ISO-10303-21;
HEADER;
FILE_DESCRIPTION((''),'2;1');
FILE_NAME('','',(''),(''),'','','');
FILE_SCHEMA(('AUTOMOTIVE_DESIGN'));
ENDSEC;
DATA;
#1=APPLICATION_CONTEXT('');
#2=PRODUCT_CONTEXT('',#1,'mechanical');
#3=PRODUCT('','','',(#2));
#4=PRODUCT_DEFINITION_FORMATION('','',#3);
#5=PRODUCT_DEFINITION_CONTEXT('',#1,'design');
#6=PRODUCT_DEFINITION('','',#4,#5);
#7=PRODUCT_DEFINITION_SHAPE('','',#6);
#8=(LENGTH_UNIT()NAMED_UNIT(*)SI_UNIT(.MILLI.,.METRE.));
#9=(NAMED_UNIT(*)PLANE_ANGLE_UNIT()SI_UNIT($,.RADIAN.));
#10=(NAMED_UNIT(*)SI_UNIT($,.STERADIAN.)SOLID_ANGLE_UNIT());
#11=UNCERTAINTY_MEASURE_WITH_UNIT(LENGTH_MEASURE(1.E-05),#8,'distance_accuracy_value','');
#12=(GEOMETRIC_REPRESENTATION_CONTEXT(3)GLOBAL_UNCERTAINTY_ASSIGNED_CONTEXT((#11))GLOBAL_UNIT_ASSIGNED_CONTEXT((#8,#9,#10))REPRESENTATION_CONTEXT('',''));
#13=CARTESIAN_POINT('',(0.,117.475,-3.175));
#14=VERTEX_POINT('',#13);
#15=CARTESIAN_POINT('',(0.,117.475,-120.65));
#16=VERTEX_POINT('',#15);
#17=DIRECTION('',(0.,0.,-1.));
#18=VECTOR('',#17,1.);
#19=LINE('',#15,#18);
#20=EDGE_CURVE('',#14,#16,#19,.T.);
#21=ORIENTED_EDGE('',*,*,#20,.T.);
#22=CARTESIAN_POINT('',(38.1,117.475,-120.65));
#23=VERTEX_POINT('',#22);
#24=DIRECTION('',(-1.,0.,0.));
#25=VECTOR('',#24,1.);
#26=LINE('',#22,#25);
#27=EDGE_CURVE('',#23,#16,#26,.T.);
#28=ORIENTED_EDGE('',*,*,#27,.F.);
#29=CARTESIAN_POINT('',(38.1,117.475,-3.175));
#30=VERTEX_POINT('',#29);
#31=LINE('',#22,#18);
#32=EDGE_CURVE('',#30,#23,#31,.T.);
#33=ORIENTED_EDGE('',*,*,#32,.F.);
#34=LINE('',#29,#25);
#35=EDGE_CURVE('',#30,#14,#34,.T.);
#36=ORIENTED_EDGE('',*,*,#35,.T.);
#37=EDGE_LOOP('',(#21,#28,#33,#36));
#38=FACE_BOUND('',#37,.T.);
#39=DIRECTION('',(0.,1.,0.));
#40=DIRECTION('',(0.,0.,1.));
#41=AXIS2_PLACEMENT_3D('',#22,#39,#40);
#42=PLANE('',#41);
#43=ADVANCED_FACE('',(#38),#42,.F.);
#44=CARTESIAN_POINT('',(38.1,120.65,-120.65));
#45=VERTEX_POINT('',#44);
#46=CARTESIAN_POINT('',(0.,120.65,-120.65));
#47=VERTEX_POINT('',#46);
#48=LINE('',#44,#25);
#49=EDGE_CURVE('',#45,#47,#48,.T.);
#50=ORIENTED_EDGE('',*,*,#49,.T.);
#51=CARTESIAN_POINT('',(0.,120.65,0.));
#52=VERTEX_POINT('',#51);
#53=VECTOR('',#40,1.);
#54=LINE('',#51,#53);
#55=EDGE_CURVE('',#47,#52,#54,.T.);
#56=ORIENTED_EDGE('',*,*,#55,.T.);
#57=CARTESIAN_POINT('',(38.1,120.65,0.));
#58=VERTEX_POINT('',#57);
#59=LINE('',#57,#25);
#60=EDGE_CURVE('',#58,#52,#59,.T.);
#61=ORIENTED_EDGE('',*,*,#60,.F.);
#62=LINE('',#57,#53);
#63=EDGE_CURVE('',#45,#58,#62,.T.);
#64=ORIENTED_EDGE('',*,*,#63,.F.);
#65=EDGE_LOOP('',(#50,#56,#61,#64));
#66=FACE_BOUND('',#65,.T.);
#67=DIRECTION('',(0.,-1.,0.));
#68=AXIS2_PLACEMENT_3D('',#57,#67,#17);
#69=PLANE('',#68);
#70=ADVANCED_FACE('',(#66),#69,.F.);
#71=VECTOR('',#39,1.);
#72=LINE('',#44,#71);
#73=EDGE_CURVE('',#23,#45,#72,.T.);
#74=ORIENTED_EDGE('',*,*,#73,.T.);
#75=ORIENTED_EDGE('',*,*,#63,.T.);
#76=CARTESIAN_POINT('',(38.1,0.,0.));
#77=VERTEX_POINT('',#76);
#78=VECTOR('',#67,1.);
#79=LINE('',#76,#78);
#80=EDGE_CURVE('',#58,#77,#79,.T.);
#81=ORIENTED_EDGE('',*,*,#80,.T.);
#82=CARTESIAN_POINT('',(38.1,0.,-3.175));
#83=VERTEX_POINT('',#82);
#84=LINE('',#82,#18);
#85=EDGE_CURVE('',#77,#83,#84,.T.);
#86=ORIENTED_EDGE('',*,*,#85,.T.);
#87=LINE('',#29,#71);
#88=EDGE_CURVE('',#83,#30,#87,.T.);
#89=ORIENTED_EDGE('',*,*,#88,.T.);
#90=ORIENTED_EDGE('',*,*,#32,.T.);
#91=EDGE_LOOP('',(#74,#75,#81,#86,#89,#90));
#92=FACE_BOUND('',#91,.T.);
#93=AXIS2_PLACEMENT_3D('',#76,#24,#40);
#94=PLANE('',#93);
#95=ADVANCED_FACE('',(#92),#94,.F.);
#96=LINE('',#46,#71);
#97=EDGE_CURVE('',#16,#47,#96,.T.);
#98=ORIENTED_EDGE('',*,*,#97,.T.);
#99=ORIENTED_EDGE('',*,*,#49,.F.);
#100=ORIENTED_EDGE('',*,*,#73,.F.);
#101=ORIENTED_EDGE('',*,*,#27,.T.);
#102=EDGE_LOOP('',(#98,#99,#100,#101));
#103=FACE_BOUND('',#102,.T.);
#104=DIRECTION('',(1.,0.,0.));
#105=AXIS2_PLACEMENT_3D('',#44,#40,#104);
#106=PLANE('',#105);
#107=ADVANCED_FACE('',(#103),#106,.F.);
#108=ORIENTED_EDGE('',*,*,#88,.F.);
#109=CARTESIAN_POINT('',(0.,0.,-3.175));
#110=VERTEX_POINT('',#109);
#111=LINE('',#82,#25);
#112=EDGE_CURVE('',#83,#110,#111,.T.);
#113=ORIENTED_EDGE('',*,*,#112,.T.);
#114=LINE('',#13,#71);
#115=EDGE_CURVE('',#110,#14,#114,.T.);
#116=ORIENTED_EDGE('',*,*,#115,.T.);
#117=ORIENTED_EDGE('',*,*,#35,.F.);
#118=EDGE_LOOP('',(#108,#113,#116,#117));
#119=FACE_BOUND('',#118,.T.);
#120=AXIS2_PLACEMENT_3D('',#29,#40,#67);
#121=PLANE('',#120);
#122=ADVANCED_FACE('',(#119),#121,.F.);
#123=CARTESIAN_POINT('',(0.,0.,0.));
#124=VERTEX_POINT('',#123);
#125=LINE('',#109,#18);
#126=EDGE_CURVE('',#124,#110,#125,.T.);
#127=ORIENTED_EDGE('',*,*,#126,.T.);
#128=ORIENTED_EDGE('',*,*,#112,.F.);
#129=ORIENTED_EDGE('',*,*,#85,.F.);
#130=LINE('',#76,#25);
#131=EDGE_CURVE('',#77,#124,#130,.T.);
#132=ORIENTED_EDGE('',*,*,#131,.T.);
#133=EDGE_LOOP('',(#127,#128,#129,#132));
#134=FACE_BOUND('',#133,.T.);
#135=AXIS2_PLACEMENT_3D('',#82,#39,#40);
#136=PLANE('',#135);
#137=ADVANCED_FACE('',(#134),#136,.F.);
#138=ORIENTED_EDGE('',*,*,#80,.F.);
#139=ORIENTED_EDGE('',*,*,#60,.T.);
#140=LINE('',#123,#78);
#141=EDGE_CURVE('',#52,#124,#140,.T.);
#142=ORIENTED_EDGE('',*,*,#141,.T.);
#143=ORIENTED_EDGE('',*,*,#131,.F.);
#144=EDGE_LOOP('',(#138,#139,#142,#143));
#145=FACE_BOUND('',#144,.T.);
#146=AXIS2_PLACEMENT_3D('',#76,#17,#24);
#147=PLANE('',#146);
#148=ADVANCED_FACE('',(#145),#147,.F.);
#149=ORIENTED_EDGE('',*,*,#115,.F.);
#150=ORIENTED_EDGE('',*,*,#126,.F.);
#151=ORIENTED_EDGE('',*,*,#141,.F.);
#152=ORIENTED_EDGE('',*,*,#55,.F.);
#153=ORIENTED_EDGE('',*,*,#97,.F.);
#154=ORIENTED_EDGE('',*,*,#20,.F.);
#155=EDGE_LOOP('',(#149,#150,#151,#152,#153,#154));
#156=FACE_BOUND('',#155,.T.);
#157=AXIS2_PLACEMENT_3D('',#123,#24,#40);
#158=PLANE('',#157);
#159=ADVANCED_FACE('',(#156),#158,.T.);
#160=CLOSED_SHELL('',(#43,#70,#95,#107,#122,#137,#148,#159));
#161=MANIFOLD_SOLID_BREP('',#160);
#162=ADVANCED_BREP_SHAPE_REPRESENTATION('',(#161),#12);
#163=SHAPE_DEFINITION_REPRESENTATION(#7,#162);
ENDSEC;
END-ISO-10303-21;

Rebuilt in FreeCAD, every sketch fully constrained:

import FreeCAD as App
import Part
import Sketcher

V = App.Vector
Q = App.Units.Quantity


def add_polygon(sketch, points):
    """Adds a closed chain of lines whose ends are joined by coincident constraints."""
    first, n = sketch.GeometryCount, len(points)
    for a, b in zip(points, points[1:] + points[:1]):
        sketch.addGeometry(Part.LineSegment(App.Vector(*a, 0), App.Vector(*b, 0)), False)
    for i in range(n):
        sketch.addConstraint(Sketcher.Constraint("Coincident", first + i, 2, first + (i + 1) % n, 1))

doc = App.newDocument("Part")
body = doc.addObject("PartDesign::Body", "Body")

sketch1 = doc.addObject("Sketcher::SketchObject", "Sketch")
body.addObject(sketch1)
sketch1.AttachmentSupport = (doc.YZ_Plane, [""])
sketch1.MapMode = "FlatFace"
add_polygon(sketch1, [(120.65, 0), (0, 0), (0, -3.175), (117.475, -3.175), (117.475, -120.65), (120.65, -120.65)])
sketch1.addConstraint(Sketcher.Constraint("Horizontal", 0))
sketch1.addConstraint(Sketcher.Constraint("Vertical", 1))
sketch1.addConstraint(Sketcher.Constraint("Horizontal", 2))
sketch1.addConstraint(Sketcher.Constraint("Vertical", 3))
sketch1.addConstraint(Sketcher.Constraint("Horizontal", 4))
sketch1.addConstraint(Sketcher.Constraint("Vertical", 5))
sketch1.addConstraint(Sketcher.Constraint("Coincident", 0, 2, -1, 1))
sketch1.addConstraint(Sketcher.Constraint("Equal", 4, 1))
sketch1.addConstraint(Sketcher.Constraint("Equal", 2, 3))
sketch1.addConstraint(Sketcher.Constraint("DistanceX", 0, 2, 0, 1, Q("4.75 in")))
sketch1.addConstraint(Sketcher.Constraint("DistanceX", 2, 1, 2, 2, Q("4.625 in")))
pad1 = doc.addObject("PartDesign::Pad", "Pad")
body.addObject(pad1)
pad1.Profile = sketch1
pad1.Length = Q("1.5 in")

doc.recompute()
